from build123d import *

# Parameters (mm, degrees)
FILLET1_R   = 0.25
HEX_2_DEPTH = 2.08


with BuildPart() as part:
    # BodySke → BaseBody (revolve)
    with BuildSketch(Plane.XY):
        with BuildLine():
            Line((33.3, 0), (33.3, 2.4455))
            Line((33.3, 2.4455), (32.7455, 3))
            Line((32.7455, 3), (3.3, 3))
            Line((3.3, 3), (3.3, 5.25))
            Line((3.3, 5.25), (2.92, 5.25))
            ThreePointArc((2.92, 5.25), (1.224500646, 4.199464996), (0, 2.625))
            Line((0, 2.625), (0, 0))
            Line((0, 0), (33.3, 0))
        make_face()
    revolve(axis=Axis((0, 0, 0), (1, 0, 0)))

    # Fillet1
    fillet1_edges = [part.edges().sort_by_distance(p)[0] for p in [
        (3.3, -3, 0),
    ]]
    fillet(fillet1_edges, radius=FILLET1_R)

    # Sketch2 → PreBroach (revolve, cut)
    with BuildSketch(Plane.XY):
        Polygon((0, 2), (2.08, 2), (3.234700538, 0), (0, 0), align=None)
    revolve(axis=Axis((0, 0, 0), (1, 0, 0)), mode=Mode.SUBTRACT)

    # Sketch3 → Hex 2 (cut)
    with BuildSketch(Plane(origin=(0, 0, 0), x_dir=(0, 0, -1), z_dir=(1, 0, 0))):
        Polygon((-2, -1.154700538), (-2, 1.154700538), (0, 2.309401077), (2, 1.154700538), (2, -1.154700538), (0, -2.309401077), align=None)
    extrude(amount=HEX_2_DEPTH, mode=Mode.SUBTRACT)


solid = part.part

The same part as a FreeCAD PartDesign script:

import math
import FreeCAD as App
import Part
import Sketcher
Q = App.Units.Quantity


def edges_at(feature, points):
    """Names of the edges that pass closest to the given points."""
    edges = feature.Shape.Edges
    near = lambda p: min(range(len(edges)), key=lambda i: edges[i].distToShape(Part.Vertex(*p))[0])
    return sorted({f"Edge{near(p) + 1}" for p in points})


def add_polygon(sketch, points):
    """Adds a closed chain of lines whose ends are joined by coincident constraints."""
    first, n = sketch.GeometryCount, len(points)
    for a, b in zip(points, points[1:] + points[:1]):
        sketch.addGeometry(Part.LineSegment(App.Vector(*a, 0), App.Vector(*b, 0)), False)
    for i in range(n):
        sketch.addConstraint(Sketcher.Constraint("Coincident", first + i, 2, first + (i + 1) % n, 1))

doc = App.newDocument("Part")
body = doc.addObject("PartDesign::Body", "Body")

# Sketch on XY plane
sketch1 = doc.addObject("Sketcher::SketchObject", "Sketch")
body.addObject(sketch1)
sketch1.AttachmentSupport = (doc.XY_Plane, [""])
sketch1.MapMode = "FlatFace"
sketch1.addGeometry(Part.LineSegment(App.Vector(33.3, 0, 0), App.Vector(33.3, 2.45, 0)), False)
sketch1.addGeometry(Part.LineSegment(App.Vector(33.3, 2.45, 0), App.Vector(32.75, 3, 0)), False)
sketch1.addGeometry(Part.LineSegment(App.Vector(32.75, 3, 0), App.Vector(3.3, 3, 0)), False)
sketch1.addGeometry(Part.LineSegment(App.Vector(3.3, 3, 0), App.Vector(3.3, 5.25, 0)), False)
sketch1.addGeometry(Part.LineSegment(App.Vector(3.3, 5.25, 0), App.Vector(2.92, 5.25, 0)), False)
sketch1.addGeometry(Part.ArcOfCircle(Part.Circle(App.Vector(5, 0, 0), App.Vector(0, 0, 1), 5.65), math.radians(112), math.radians(152)), False)
sketch1.addGeometry(Part.LineSegment(App.Vector(0, 2.62, 0), App.Vector(0, 0, 0)), False)
sketch1.addGeometry(Part.LineSegment(App.Vector(0, 0, 0), App.Vector(33.3, 0, 0)), False)
sketch1.addConstraint(Sketcher.Constraint("Coincident", 0, 2, 1, 1))
sketch1.addConstraint(Sketcher.Constraint("Coincident", 1, 2, 2, 1))
sketch1.addConstraint(Sketcher.Constraint("Coincident", 2, 2, 3, 1))
sketch1.addConstraint(Sketcher.Constraint("Coincident", 3, 2, 4, 1))
sketch1.addConstraint(Sketcher.Constraint("Coincident", 4, 2, 5, 1))
sketch1.addConstraint(Sketcher.Constraint("Coincident", 5, 2, 6, 1))
sketch1.addConstraint(Sketcher.Constraint("Coincident", 6, 2, 7, 1))
sketch1.addConstraint(Sketcher.Constraint("Coincident", 7, 2, 0, 1))
sketch1.addConstraint(Sketcher.Constraint("Vertical", 0))
sketch1.addConstraint(Sketcher.Constraint("Horizontal", 2))
sketch1.addConstraint(Sketcher.Constraint("Vertical", 3))
sketch1.addConstraint(Sketcher.Constraint("Horizontal", 4))
sketch1.addConstraint(Sketcher.Constraint("Vertical", 6))
sketch1.addConstraint(Sketcher.Constraint("Horizontal", 7))
sketch1.addConstraint(Sketcher.Constraint("Coincident", 6, 2, -1, 1))
sketch1.addConstraint(Sketcher.Constraint("PointOnObject", 5, 3, -1))
sketch1.addConstraint(Sketcher.Constraint("Angle", 1, Q("135 deg")))
sketch1.addConstraint(Sketcher.Constraint("DistanceX", 7, 1, 7, 2, 33.3))
sketch1.addConstraint(Sketcher.Constraint("DistanceY", -1, 1, 1, 2, 3.0))
sketch1.addConstraint(Sketcher.Constraint("DistanceX", 2, 2, 0, 2, 30.0))
sketch1.addConstraint(Sketcher.Constraint("DistanceX", 4, 2, 4, 1, 0.38))
sketch1.addConstraint(Sketcher.Constraint("DistanceY", 3, 1, 3, 2, 2.25))
sketch1.addConstraint(Sketcher.Constraint("DistanceY", 6, 2, 6, 1, 2.625))
sketch1.addConstraint(Sketcher.Constraint("DistanceX", 2, 2, 2, 1, 29.4455))
revolution = doc.addObject("PartDesign::Revolution", "Revolution")
body.addObject(revolution)
revolution.Profile = sketch1
revolution.ReferenceAxis = (sketch1, ["H_Axis"])
revolution.Angle = 360
doc.recompute()

fillet = doc.addObject("PartDesign::Fillet", "Fillet")
body.addObject(fillet)
fillet.Base = (revolution, edges_at(revolution, [(3.3, -3, 0)]))
fillet.Radius = 0.25

# Sketch on XY plane
sketch2 = doc.addObject("Sketcher::SketchObject", "Sketch001")
body.addObject(sketch2)
sketch2.AttachmentSupport = (doc.XY_Plane, [""])
sketch2.MapMode = "FlatFace"
add_polygon(sketch2, [(2.1, 2), (0, 2), (0, 0), (3.2, 0)])  # lines 0-3
sketch2.addConstraint(Sketcher.Constraint("Horizontal", 0))
sketch2.addConstraint(Sketcher.Constraint("Vertical", 1))
sketch2.addConstraint(Sketcher.Constraint("Horizontal", 2))
sketch2.addConstraint(Sketcher.Constraint("Coincident", 1, 2, -1, 1))
sketch2.addConstraint(Sketcher.Constraint("DistanceY", 1, 2, 1, 1, 2.0))
sketch2.addConstraint(Sketcher.Constraint("Angle", 3, Q("120 deg")))
sketch2.addConstraint(Sketcher.Constraint("DistanceX", 0, 2, 0, 1, 2.08))
groove = doc.addObject("PartDesign::Groove", "Groove")
body.addObject(groove)
groove.Profile = sketch2
groove.ReferenceAxis = (sketch2, ["H_Axis"])
groove.Angle = 360

# Sketch on YZ plane
sketch3 = doc.addObject("Sketcher::SketchObject", "Sketch002")
body.addObject(sketch3)
sketch3.AttachmentSupport = (doc.YZ_Plane, [""])
sketch3.MapMode = "FlatFace"
add_polygon(sketch3, [(1.2, 2), (-1.2, 2), (-2.3, 0), (-1.2, -2), (1.2, -2), (2.3, 0)])  # lines 0-5
sketch3.addConstraint(Sketcher.Constraint("Horizontal", 0))
sketch3.addConstraint(Sketcher.Constraint("Horizontal", 3))
sketch3.addConstraint(Sketcher.Constraint("Symmetric", 0, 2, 3, 2, -1, 1))
sketch3.addConstraint(Sketcher.Constraint("Symmetric", 1, 2, 4, 2, -1, 1))
sketch3.addConstraint(Sketcher.Constraint("PointOnObject", 1, 2, -1))
sketch3.addConstraint(Sketcher.Constraint("Parallel", 2, 5))
sketch3.addConstraint(Sketcher.Constraint("Vertical", 0, 2, 2, 2))
sketch3.addConstraint(Sketcher.Constraint("Angle", 1, Q("-120 deg")))
sketch3.addConstraint(Sketcher.Constraint("DistanceY", -1, 1, 0, 2, 2.0))
sketch3.addConstraint(Sketcher.Constraint("DistanceX", 0, 2, 0, 1, 2.309401))
pocket1 = doc.addObject("PartDesign::Pocket", "Pocket")
body.addObject(pocket1)
pocket1.Profile = sketch3
pocket1.Length = 2.08
pocket1.Reversed = True

doc.recompute()
